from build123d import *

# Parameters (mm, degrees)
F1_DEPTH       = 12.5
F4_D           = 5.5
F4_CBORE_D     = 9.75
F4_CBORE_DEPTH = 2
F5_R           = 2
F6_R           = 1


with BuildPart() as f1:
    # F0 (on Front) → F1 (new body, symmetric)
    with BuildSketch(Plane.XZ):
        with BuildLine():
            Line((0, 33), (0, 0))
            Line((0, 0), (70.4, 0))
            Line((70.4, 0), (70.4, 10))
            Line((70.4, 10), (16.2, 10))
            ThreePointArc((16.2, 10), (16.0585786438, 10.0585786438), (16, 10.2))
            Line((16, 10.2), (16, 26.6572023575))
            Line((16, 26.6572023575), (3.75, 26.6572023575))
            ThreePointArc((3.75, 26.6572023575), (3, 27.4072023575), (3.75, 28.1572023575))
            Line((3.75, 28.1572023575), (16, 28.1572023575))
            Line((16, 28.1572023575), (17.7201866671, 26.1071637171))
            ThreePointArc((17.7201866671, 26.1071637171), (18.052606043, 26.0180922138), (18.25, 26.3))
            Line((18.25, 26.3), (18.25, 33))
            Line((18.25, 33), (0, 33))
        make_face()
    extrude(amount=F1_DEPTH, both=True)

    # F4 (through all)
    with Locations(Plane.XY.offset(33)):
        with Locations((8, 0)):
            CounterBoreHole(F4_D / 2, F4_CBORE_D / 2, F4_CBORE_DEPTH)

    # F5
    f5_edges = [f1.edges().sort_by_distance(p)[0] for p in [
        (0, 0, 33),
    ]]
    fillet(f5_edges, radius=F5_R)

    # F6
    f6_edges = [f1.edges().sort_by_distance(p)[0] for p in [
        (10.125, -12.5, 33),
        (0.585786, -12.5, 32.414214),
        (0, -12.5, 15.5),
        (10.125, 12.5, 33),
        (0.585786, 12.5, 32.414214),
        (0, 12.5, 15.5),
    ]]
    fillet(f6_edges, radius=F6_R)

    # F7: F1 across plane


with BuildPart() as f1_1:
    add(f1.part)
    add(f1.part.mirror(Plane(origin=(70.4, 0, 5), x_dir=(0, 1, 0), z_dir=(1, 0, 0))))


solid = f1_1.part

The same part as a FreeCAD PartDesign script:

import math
import FreeCAD as App
import Part
import Sketcher
Q = App.Units.Quantity


def edges_at(feature, points):
    """Names of the edges that pass closest to the given points."""
    edges = feature.Shape.Edges
    near = lambda p: min(range(len(edges)), key=lambda i: edges[i].distToShape(Part.Vertex(*p))[0])
    return sorted({f"Edge{near(p) + 1}" for p in points})

doc = App.newDocument("Part")
body = doc.addObject("PartDesign::Body", "Body")

# Sketch on XZ plane
sketch1 = doc.addObject("Sketcher::SketchObject", "Sketch")
body.addObject(sketch1)
sketch1.AttachmentSupport = (doc.XZ_Plane, [""])
sketch1.MapMode = "FlatFace"
sketch1.addGeometry([
    Part.LineSegment(App.Vector(0, 33, 0), App.Vector(0, 0, 0)),  # 0
    Part.LineSegment(App.Vector(0, 0, 0), App.Vector(70.4, 0, 0)),  # 1
    Part.LineSegment(App.Vector(70.4, 0, 0), App.Vector(70.4, 10, 0)),  # 2
    Part.LineSegment(App.Vector(70.4, 10, 0), App.Vector(16.2, 10, 0)),  # 3
    Part.ArcOfCircle(Part.Circle(App.Vector(16.2, 10.2, 0), App.Vector(0, 0, 1), 0.2), math.radians(180), math.radians(270)),  # 4
    Part.LineSegment(App.Vector(16, 10.2, 0), App.Vector(16, 26.66, 0)),  # 5
    Part.LineSegment(App.Vector(16, 26.66, 0), App.Vector(3.75, 26.66, 0)),  # 6
    Part.ArcOfCircle(Part.Circle(App.Vector(3.75, 27.41, 0), App.Vector(0, 0, 1), 0.75), math.radians(90), math.radians(270)),  # 7
    Part.LineSegment(App.Vector(3.75, 28.16, 0), App.Vector(16, 28.16, 0)),  # 8
    Part.LineSegment(App.Vector(16, 28.16, 0), App.Vector(17.72, 26.11, 0)),  # 9
    Part.ArcOfCircle(Part.Circle(App.Vector(17.95, 26.3, 0), App.Vector(0, 0, 1), 0.3), math.radians(-140), math.radians(0)),  # 10
    Part.LineSegment(App.Vector(18.25, 26.3, 0), App.Vector(18.25, 33, 0)),  # 11
    Part.LineSegment(App.Vector(18.25, 33, 0), App.Vector(0, 33, 0)),  # 12
], False)
sketch1.addConstraint([
    Sketcher.Constraint("Coincident", 0, 2, 1, 1),
    Sketcher.Constraint("Coincident", 1, 2, 2, 1),
    Sketcher.Constraint("Coincident", 2, 2, 3, 1),
    Sketcher.Constraint("Tangent", 3, 2, 4, 2),
    Sketcher.Constraint("Tangent", 4, 1, 5, 1),
    Sketcher.Constraint("Coincident", 5, 2, 6, 1),
    Sketcher.Constraint("Tangent", 6, 2, 7, 2),
    Sketcher.Constraint("Tangent", 7, 1, 8, 1),
    Sketcher.Constraint("Coincident", 8, 2, 9, 1),
    Sketcher.Constraint("Tangent", 9, 2, 10, 1),
    Sketcher.Constraint("Tangent", 10, 2, 11, 1),
    Sketcher.Constraint("Coincident", 11, 2, 12, 1),
    Sketcher.Constraint("Coincident", 12, 2, 0, 1),
    Sketcher.Constraint("Vertical", 0),
    Sketcher.Constraint("Horizontal", 1),
    Sketcher.Constraint("Vertical", 2),
    Sketcher.Constraint("Horizontal", 3),
    Sketcher.Constraint("Vertical", 5),
    Sketcher.Constraint("Horizontal", 6),
    Sketcher.Constraint("Horizontal", 8),
    Sketcher.Constraint("Vertical", 11),
    Sketcher.Constraint("Horizontal", 12),
    Sketcher.Constraint("Coincident", 0, 2, -1, 1),
    Sketcher.Constraint("Vertical", 5, 2, 8, 2),
    Sketcher.Constraint("Radius", 4, 0.2),
    Sketcher.Constraint("Radius", 10, 0.3),
    Sketcher.Constraint("DistanceY", 0, 2, 0, 1, 33.0),
    Sketcher.Constraint("DistanceY", 2, 1, 2, 2, 10.0),
    Sketcher.Constraint("Angle", 9, Q("-50 deg")),
    Sketcher.Constraint("Radius", 7, 0.75),
    Sketcher.Constraint("DistanceX", 1, 1, 1, 2, 70.4),
    Sketcher.Constraint("DistanceX", 3, 2, 3, 1, 54.2),
    Sketcher.Constraint("DistanceY", 11, 1, 11, 2, 6.7),
    Sketcher.Constraint("DistanceX", 6, 2, 6, 1, 12.25),
    Sketcher.Constraint("DistanceX", 12, 2, 12, 1, 18.25),
])
pad1 = doc.addObject("PartDesign::Pad", "Pad")
body.addObject(pad1)
pad1.Profile = sketch1
pad1.Length = 25
pad1.Midplane = True

# Sketch on XY plane
sketch2 = doc.addObject("Sketcher::SketchObject", "Sketch001")
body.addObject(sketch2)
sketch2.AttachmentSupport = (doc.XY_Plane, [""])
sketch2.MapMode = "FlatFace"
sketch2.AttachmentOffset = App.Placement(App.Vector(0, 0, 33), App.Rotation())
sketch2.addGeometry(Part.Circle(App.Vector(8, 0, 0), App.Vector(0, 0, 1), 2.8), False)
sketch2.addConstraint([
    Sketcher.Constraint("PointOnObject", 0, 3, -1),
    Sketcher.Constraint("Diameter", 0, 5.5),
    Sketcher.Constraint("DistanceX", -1, 1, 0, 3, 8.0),
])
doc.recompute()
hole = doc.addObject("PartDesign::Hole", "Hole")
body.addObject(hole)
hole.Profile = sketch2
hole.ThreadType = "None"
hole.Diameter = 5.5
hole.DepthType = "ThroughAll"
hole.HoleCutType = "Counterbore"
hole.HoleCutDiameter = 9.75
hole.HoleCutDepth = 2
doc.recompute()

fillet = doc.addObject("PartDesign::Fillet", "Fillet")
body.addObject(fillet)
fillet.Base = (hole, edges_at(hole, [(0, 0, 33)]))
fillet.Radius = 2
doc.recompute()

fillet2 = doc.addObject("PartDesign::Fillet", "Fillet001")
body.addObject(fillet2)
fillet2.Base = (fillet, edges_at(fillet, [
    (10.125, -12.5, 33),
    (0.586, -12.5, 32.414),
    (0, -12.5, 15.5),
    (10.125, 12.5, 33),
    (0.586, 12.5, 32.414),
    (0, 12.5, 15.5),
]))
fillet2.Radius = 1
body2 = doc.addObject("PartDesign::Body", "Body001")
doc.recompute()

body2.BaseFeature = body
doc.recompute()

mirroring = doc.addObject("Part::Mirroring", "Mirroring")
mirroring.Source = body
mirroring.Base = App.Vector(70.4, 0, 5)
mirroring.Normal = App.Vector(1, 0, 0)
body3 = doc.addObject("PartDesign::Body", "Body002")
body3.BaseFeature = mirroring
boolean = doc.addObject("PartDesign::Boolean", "Boolean")
body2.addObject(boolean)
boolean.Type = "Fuse"
boolean.addObjects([body3])
doc.recompute()
mirroring.Visibility = False

doc.recompute()
